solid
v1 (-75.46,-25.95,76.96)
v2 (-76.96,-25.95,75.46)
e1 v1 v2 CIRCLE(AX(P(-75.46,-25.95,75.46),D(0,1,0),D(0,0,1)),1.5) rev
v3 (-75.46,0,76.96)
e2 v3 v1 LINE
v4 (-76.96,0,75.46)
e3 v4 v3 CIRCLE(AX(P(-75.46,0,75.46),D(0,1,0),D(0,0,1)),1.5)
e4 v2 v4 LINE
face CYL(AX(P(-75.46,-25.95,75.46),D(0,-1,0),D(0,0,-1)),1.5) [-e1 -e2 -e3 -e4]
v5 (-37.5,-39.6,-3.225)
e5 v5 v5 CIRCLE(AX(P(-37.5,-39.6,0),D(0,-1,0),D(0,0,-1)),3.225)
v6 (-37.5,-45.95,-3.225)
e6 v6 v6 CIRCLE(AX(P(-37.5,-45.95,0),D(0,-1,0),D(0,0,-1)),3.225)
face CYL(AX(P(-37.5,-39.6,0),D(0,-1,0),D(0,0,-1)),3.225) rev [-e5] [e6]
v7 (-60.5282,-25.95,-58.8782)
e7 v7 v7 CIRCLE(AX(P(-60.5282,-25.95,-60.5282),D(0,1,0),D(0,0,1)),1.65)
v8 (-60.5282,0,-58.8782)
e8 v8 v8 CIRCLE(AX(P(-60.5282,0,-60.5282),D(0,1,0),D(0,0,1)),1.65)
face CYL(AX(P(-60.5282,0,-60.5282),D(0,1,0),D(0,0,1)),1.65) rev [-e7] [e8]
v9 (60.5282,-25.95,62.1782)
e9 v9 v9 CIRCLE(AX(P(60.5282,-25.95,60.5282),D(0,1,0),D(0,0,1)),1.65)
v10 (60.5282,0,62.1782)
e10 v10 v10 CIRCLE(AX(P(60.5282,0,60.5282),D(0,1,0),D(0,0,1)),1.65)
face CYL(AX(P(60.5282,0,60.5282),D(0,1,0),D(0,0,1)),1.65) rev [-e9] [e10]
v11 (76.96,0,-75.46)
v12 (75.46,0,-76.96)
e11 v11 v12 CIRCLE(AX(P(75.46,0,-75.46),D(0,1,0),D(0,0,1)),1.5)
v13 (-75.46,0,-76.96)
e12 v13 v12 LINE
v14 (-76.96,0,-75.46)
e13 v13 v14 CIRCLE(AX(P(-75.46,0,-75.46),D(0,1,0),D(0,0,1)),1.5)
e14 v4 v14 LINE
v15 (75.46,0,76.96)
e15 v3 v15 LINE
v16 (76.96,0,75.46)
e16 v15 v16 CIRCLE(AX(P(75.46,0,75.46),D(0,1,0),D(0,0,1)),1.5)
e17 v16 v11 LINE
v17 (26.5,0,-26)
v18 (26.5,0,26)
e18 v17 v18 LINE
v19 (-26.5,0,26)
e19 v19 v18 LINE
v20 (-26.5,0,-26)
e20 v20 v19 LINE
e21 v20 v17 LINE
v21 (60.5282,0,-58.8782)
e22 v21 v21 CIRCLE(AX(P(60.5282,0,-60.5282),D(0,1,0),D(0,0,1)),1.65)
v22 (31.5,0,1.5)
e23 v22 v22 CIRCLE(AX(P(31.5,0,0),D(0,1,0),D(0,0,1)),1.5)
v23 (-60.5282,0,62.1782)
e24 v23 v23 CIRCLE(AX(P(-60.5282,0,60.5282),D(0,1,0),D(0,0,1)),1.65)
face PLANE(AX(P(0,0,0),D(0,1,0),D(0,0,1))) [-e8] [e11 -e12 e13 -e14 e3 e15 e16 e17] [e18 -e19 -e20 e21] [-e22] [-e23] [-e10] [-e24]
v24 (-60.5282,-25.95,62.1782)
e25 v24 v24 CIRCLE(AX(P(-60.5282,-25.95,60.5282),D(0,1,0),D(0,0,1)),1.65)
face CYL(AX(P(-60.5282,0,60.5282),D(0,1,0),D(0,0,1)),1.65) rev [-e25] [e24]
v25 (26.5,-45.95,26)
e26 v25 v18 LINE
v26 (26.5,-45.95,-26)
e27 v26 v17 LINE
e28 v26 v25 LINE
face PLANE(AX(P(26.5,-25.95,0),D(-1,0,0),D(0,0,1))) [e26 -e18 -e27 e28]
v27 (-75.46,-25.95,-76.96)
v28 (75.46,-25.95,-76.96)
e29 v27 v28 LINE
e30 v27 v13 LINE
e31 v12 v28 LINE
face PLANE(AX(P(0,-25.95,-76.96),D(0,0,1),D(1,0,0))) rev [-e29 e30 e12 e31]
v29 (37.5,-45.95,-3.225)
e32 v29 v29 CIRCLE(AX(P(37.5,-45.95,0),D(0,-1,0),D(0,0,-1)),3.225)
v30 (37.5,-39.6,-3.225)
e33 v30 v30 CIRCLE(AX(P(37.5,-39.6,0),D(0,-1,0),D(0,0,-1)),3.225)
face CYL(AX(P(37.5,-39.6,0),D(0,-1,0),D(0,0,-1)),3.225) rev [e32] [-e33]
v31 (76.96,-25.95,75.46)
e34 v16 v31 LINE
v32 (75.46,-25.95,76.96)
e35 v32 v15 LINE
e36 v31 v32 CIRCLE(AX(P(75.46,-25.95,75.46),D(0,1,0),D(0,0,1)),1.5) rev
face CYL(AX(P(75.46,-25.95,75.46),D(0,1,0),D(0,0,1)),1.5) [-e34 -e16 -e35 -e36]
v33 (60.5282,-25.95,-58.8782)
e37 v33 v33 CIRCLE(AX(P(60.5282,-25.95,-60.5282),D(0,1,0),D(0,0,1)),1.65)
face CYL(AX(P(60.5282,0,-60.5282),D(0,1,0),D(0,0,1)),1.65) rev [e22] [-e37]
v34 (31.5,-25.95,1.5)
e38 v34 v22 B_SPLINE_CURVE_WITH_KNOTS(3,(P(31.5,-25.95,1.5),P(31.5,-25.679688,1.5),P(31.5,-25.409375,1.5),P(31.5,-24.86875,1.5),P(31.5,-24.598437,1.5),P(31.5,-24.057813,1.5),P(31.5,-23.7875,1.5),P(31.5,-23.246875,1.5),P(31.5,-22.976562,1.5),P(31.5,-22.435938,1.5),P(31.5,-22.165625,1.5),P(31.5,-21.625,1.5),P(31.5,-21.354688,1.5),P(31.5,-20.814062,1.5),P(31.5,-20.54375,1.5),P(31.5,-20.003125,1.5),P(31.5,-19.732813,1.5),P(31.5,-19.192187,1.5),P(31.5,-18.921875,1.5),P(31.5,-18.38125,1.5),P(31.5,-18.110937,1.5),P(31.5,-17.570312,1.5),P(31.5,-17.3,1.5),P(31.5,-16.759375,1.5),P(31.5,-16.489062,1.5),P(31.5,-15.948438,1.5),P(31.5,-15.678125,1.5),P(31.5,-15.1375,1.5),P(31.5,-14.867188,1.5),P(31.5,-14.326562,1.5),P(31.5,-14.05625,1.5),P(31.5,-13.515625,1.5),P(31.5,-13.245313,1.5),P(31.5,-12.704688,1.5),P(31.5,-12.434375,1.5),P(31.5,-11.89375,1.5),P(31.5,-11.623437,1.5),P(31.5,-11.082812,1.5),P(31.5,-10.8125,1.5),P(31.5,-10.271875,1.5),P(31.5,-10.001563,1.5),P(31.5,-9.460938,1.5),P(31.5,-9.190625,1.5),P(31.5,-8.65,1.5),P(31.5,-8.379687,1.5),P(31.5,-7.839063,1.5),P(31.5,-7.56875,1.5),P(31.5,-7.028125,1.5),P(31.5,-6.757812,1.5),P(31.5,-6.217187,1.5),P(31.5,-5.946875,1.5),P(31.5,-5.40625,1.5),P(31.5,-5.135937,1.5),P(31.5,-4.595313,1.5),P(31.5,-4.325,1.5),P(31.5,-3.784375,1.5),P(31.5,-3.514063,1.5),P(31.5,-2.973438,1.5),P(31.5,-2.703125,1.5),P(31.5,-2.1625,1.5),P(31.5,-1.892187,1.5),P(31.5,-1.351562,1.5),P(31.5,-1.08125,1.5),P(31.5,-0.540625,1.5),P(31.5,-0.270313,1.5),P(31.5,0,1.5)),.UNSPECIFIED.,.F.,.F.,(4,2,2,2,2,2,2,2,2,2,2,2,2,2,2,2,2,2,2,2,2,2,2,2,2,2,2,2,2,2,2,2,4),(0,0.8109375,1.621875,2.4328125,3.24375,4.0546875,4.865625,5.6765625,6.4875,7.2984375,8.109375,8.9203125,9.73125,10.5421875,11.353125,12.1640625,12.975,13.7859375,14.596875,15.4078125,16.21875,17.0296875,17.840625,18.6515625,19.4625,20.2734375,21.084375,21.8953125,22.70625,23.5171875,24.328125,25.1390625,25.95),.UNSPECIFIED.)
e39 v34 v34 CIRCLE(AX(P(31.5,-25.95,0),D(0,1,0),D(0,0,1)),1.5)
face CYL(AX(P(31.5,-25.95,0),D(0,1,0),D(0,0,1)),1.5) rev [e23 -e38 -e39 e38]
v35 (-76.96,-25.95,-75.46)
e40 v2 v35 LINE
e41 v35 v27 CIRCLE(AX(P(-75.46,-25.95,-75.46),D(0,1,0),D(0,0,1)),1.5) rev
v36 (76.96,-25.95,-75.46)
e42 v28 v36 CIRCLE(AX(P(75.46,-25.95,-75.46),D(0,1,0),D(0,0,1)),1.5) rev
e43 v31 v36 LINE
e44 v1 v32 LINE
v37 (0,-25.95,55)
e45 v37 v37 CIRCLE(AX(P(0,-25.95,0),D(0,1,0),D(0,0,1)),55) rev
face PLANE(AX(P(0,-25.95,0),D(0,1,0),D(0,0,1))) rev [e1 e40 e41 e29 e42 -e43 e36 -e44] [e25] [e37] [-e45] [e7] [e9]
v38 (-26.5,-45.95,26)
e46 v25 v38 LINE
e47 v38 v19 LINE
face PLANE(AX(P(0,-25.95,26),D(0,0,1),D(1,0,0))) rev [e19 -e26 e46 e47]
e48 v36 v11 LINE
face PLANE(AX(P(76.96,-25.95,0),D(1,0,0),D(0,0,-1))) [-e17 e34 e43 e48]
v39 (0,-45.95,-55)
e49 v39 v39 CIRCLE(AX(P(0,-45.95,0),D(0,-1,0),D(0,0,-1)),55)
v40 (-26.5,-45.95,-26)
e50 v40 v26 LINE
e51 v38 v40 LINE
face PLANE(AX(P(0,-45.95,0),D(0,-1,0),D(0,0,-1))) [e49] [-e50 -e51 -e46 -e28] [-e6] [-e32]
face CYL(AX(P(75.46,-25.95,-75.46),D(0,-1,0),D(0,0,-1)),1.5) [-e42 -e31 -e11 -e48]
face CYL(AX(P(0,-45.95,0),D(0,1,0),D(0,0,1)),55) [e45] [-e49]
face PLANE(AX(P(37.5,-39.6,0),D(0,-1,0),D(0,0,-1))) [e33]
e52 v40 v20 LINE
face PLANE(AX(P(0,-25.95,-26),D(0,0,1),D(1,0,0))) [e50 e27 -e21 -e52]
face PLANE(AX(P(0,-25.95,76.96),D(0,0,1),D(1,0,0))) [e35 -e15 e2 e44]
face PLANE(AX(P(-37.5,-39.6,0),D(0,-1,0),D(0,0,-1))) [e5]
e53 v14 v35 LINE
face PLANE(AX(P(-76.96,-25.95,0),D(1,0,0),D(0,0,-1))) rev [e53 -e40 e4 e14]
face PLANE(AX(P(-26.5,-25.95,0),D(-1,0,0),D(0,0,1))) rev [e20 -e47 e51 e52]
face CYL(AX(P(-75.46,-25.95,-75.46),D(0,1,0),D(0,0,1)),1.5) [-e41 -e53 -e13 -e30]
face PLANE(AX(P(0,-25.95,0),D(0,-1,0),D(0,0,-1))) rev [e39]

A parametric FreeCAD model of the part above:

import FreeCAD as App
import Part
import Sketcher
from FreeCAD import Vector
Q = App.Units.Quantity


def edges_at(feature, points):
    """Names of the edges that pass closest to the given points."""
    edges = feature.Shape.Edges
    near = lambda p: min(range(len(edges)), key=lambda i: edges[i].distToShape(Part.Vertex(*p))[0])
    return sorted({f"Edge{near(p) + 1}" for p in points})

doc = App.newDocument("Part")
body = doc.addObject("PartDesign::Body", "Body")

sketch1 = body.newObject("Sketcher::SketchObject", "Sketch")
sketch1.AttachmentSupport = (doc.getObject("XZ_Plane"), [""])
sketch1.MapMode = "FlatFace"
sketch1.addGeometry([
    Part.LineSegment(Vector(-77, -77, 0), Vector(-77, 77, 0)),
    Part.LineSegment(Vector(-77, 77, 0), Vector(77, 77, 0)),
    Part.LineSegment(Vector(77, 77, 0), Vector(77, -77, 0)),
    Part.LineSegment(Vector(77, -77, 0), Vector(-77, -77, 0)),
    Part.LineSegment(Vector(26.5, 26, 0), Vector(-26.5, 26, 0)),
    Part.LineSegment(Vector(-26.5, 26, 0), Vector(-26.5, -26, 0)),
    Part.LineSegment(Vector(-26.5, -26, 0), Vector(26.5, -26, 0)),
    Part.LineSegment(Vector(26.5, -26, 0), Vector(26.5, 26, 0)),
    Part.Circle(Vector(31.5, 0, 0), Vector(0, 0, 1), 1.5),
], False)
sketch1.addConstraint([
    Sketcher.Constraint("Coincident", 0, 2, 1, 1),
    Sketcher.Constraint("Coincident", 1, 2, 2, 1),
    Sketcher.Constraint("Coincident", 2, 2, 3, 1),
    Sketcher.Constraint("Coincident", 3, 2, 0, 1),
    Sketcher.Constraint("Coincident", 4, 2, 5, 1),
    Sketcher.Constraint("Coincident", 5, 2, 6, 1),
    Sketcher.Constraint("Coincident", 6, 2, 7, 1),
    Sketcher.Constraint("Coincident", 7, 2, 4, 1),
    Sketcher.Constraint("Vertical", 0),
    Sketcher.Constraint("Horizontal", 1),
    Sketcher.Constraint("Vertical", 2),
    Sketcher.Constraint("Horizontal", 3),
    Sketcher.Constraint("Horizontal", 4),
    Sketcher.Constraint("Vertical", 5),
    Sketcher.Constraint("Horizontal", 6),
    Sketcher.Constraint("Vertical", 7),
    Sketcher.Constraint("Symmetric", 0, 2, 2, 2, -1, 1),
    Sketcher.Constraint("Symmetric", 4, 2, 6, 2, -1, 1),
    Sketcher.Constraint("PointOnObject", 8, 3, -1),
    Sketcher.Constraint("Equal", 3, 0),
    Sketcher.Constraint("Diameter", 8, Q("3 mm")),
    Sketcher.Constraint("DistanceX", 4, 2, 4, 1, Q("53 mm")),
    Sketcher.Constraint("DistanceY", 5, 2, 5, 1, Q("52 mm")),
    Sketcher.Constraint("DistanceX", 4, 2, 8, 3, Q("58 mm")),
    Sketcher.Constraint("DistanceX", 1, 1, 1, 2, Q("153.92 mm")),
])
pad1 = body.newObject("PartDesign::Pad", "Pad")
pad1.Profile = sketch1
pad1.Length = 25.95

sketch2 = body.newObject("Sketcher::SketchObject", "Sketch001")
sketch2.AttachmentSupport = (doc.getObject("XZ_Plane"), [""])
sketch2.MapMode = "FlatFace"
sketch2.addGeometry([
    Part.Circle(Vector(-60.5, -60.5, 0), Vector(0, 0, 1), 1.6),
    Part.Circle(Vector(-60.5, 60.5, 0), Vector(0, 0, 1), 1.6),
    Part.Circle(Vector(60.5, 60.5, 0), Vector(0, 0, 1), 1.6),
    Part.Circle(Vector(60.5, -60.5, 0), Vector(0, 0, 1), 1.6),
], False)
sketch2.addConstraint([
    Sketcher.Constraint("Equal", 0, 1),
    Sketcher.Constraint("Equal", 1, 2),
    Sketcher.Constraint("Equal", 2, 3),
    Sketcher.Constraint("Symmetric", 0, 3, 2, 3, -1, 1),
    Sketcher.Constraint("Symmetric", 1, 3, 3, 3, -1, 1),
    Sketcher.Constraint("Symmetric", 1, 3, 2, 3, -2),
    Sketcher.Constraint("Diameter", 0, Q("3.3 mm")),
    Sketcher.Constraint("DistanceX", 0, 3, -1, 1, Q("60.5282 mm")),
    Sketcher.Constraint("DistanceY", 0, 3, -1, 1, Q("60.5282 mm")),
])
doc.recompute()
hole = body.newObject("PartDesign::Hole", "Hole")
hole.Profile = sketch2
hole.ThreadType = "None"
hole.Diameter = 3.3
hole.DepthType = "ThroughAll"
hole.Reversed = True

sketch3 = body.newObject("Sketcher::SketchObject", "Sketch002")
sketch3.AttachmentSupport = (doc.getObject("XZ_Plane"), [""])
sketch3.MapMode = "FlatFace"
sketch3.AttachmentOffset = App.Placement(Vector(0, 0, 25.95), App.Rotation())
sketch3.addGeometry([
    Part.Circle(Vector(0, 0, 0), Vector(0, 0, 1), 55),
    Part.LineSegment(Vector(26, -26, 0), Vector(-26, -26, 0)),
    Part.LineSegment(Vector(-26, -26, 0), Vector(-26, 26, 0)),
    Part.LineSegment(Vector(-26, 26, 0), Vector(26, 26, 0)),
    Part.LineSegment(Vector(26, 26, 0), Vector(26, -26, 0)),
], False)
sketch3.addConstraint([
    Sketcher.Constraint("Coincident", 1, 2, 2, 1),
    Sketcher.Constraint("Coincident", 2, 2, 3, 1),
    Sketcher.Constraint("Coincident", 3, 2, 4, 1),
    Sketcher.Constraint("Coincident", 4, 2, 1, 1),
    Sketcher.Constraint("Horizontal", 1),
    Sketcher.Constraint("Vertical", 2),
    Sketcher.Constraint("Horizontal", 3),
    Sketcher.Constraint("Vertical", 4),
    Sketcher.Constraint("Coincident", 0, 3, -1, 1),
    Sketcher.Constraint("Symmetric", 1, 2, 3, 2, -1, 1),
    Sketcher.Constraint("Diameter", 0, Q("110 mm")),
    Sketcher.Constraint("DistanceX", 1, 2, 1, 1, Q("53 mm")),
    Sketcher.Constraint("DistanceY", 2, 1, 2, 2, Q("52 mm")),
])
pad2 = body.newObject("PartDesign::Pad", "Pad001")
pad2.Profile = sketch3
pad2.Length = 20

sketch4 = body.newObject("Sketcher::SketchObject", "Sketch003")
sketch4.AttachmentSupport = (doc.getObject("XZ_Plane"), [""])
sketch4.MapMode = "FlatFace"
sketch4.AttachmentOffset = App.Placement(Vector(0, 0, 45.95), App.Rotation())
sketch4.addGeometry([
    Part.Circle(Vector(-37.5, 0, 0), Vector(0, 0, 1), 3.2),
    Part.Circle(Vector(37.5, 0, 0), Vector(0, 0, 1), 3.2),
], False)
sketch4.addConstraint([
    Sketcher.Constraint("Equal", 0, 1),
    Sketcher.Constraint("Symmetric", 0, 3, 1, 3, -1, 1),
    Sketcher.Constraint("PointOnObject", 0, 3, -1),
    Sketcher.Constraint("Diameter", 0, Q("6.45 mm")),
    Sketcher.Constraint("DistanceX", 0, 3, 1, 3, Q("75 mm")),
])
pocket1 = body.newObject("PartDesign::Pocket", "Pocket")
pocket1.Profile = sketch4
pocket1.Length = 6.35
doc.recompute()

fillet = body.newObject("PartDesign::Fillet", "Fillet")
fillet.Base = (pocket1, edges_at(pocket1, [
    (-76.96, -12.975, 76.96),
    (-76.96, -12.975, -76.96),
    (76.96, -12.975, -76.96),
    (76.96, -12.975, 76.96),
]))
fillet.Radius = 1.5

doc.recompute()
